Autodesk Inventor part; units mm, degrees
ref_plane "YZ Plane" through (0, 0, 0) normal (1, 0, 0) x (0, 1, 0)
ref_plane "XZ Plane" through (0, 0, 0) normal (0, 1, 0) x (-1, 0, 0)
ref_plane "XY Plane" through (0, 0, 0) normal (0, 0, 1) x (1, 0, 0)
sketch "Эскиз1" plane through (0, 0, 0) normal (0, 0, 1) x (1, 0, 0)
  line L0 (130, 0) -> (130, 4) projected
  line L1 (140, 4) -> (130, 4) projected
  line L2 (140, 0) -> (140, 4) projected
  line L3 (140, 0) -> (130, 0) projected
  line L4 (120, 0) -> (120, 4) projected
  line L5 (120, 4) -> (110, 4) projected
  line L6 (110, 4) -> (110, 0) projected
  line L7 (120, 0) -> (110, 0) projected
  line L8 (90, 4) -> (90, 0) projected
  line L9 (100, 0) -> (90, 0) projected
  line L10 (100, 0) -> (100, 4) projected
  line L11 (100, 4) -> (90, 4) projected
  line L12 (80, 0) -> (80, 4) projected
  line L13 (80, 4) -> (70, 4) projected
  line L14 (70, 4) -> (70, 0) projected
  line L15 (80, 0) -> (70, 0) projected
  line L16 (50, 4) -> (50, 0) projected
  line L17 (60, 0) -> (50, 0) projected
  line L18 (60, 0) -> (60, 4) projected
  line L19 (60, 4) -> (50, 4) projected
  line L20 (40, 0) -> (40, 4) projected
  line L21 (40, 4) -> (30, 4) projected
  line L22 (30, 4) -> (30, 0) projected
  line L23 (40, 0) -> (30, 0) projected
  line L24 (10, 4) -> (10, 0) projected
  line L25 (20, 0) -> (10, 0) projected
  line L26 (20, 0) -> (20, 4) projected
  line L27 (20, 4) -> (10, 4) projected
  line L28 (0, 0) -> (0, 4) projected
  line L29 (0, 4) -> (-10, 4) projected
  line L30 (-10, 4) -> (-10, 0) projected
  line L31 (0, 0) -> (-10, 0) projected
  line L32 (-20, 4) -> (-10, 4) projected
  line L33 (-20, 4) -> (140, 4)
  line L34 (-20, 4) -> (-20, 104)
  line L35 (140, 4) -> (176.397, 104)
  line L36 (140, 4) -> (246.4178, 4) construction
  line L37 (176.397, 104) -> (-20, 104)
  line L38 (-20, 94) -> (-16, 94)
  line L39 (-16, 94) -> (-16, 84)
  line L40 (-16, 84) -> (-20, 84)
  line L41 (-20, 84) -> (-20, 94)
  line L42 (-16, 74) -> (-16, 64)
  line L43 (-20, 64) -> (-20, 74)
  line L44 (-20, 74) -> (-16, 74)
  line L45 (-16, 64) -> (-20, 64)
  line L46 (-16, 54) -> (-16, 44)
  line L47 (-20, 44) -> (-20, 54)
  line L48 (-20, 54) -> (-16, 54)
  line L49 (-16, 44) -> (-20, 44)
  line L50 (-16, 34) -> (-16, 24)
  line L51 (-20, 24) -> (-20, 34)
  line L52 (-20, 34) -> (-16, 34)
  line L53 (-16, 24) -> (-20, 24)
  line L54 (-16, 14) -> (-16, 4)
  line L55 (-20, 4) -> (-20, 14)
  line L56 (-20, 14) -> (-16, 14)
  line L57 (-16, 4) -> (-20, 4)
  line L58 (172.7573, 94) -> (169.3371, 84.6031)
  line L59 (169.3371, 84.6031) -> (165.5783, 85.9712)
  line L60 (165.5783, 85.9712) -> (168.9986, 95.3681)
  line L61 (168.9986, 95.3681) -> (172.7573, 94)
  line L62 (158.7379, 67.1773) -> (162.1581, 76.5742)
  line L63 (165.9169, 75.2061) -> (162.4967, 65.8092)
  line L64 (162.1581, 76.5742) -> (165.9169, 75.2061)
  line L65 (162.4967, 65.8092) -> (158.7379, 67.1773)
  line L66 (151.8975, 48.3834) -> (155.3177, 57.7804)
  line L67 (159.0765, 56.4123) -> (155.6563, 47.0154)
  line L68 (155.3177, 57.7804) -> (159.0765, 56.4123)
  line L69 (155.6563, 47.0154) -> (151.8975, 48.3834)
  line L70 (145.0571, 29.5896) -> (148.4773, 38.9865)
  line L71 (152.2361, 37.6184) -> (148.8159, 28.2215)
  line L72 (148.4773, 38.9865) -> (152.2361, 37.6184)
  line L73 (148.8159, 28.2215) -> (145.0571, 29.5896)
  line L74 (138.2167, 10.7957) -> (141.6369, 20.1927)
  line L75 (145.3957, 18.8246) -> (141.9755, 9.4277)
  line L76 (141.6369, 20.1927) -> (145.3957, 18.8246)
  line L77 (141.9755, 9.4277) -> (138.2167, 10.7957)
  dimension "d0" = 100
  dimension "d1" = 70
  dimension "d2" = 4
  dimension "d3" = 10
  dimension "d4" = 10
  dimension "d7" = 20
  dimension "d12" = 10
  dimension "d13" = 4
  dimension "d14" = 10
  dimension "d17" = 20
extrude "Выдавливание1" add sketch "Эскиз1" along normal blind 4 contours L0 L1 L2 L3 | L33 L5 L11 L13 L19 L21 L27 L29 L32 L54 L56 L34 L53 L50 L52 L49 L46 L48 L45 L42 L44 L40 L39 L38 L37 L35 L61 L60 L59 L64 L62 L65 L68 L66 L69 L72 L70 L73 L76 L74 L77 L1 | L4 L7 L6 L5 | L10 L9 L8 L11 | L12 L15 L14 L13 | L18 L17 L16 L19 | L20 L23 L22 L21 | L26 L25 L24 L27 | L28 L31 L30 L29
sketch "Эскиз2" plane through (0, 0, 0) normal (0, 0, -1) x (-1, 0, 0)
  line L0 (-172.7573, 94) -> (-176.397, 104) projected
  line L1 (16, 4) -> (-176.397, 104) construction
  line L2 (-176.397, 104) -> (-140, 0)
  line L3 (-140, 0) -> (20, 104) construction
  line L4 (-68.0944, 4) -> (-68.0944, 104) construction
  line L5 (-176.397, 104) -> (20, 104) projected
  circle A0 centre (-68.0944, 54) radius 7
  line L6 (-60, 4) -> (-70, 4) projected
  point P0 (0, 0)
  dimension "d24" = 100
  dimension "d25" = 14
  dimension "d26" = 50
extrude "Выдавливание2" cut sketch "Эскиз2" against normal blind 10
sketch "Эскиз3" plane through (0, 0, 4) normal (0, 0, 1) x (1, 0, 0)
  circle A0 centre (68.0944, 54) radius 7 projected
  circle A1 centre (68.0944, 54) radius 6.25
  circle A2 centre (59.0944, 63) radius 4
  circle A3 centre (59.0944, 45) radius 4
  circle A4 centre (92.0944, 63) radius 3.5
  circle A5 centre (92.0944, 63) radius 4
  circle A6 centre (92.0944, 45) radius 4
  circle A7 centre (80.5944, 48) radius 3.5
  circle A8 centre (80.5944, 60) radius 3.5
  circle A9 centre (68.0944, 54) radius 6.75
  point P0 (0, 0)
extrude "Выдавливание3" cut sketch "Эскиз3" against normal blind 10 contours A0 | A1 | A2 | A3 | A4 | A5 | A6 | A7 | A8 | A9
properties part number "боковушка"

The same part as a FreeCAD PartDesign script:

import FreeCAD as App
import Part
import Sketcher
Q = App.Units.Quantity

doc = App.newDocument("Part")
body = doc.addObject("PartDesign::Body", "Body")

sketch1 = body.newObject("Sketcher::SketchObject", "Sketch")
sketch1.AttachmentSupport = (doc.getObject("XY_Plane"), [""])
sketch1.MapMode = "FlatFace"
sketch1.addGeometry([
    Part.LineSegment(App.Vector(130, 4, 0), App.Vector(130, 0, 0)),
    Part.LineSegment(App.Vector(130, 0, 0), App.Vector(140, 0, 0)),
    Part.LineSegment(App.Vector(140, 0, 0), App.Vector(140, 4, 0)),
    Part.LineSegment(App.Vector(140, 4, 0), App.Vector(142, 9.4, 0)),
    Part.LineSegment(App.Vector(142, 9.4, 0), App.Vector(138.2, 10.8, 0)),
    Part.LineSegment(App.Vector(138.2, 10.8, 0), App.Vector(141.6, 20.2, 0)),
    Part.LineSegment(App.Vector(141.6, 20.2, 0), App.Vector(145.4, 18.8, 0)),
    Part.LineSegment(App.Vector(145.4, 18.8, 0), App.Vector(148.8, 28.2, 0)),
    Part.LineSegment(App.Vector(148.8, 28.2, 0), App.Vector(145.1, 29.6, 0)),
    Part.LineSegment(App.Vector(145.1, 29.6, 0), App.Vector(148.5, 39, 0)),
    Part.LineSegment(App.Vector(148.5, 39, 0), App.Vector(152.2, 37.6, 0)),
    Part.LineSegment(App.Vector(152.2, 37.6, 0), App.Vector(155.7, 47, 0)),
    Part.LineSegment(App.Vector(155.7, 47, 0), App.Vector(151.9, 48.4, 0)),
    Part.LineSegment(App.Vector(151.9, 48.4, 0), App.Vector(155.3, 57.8, 0)),
    Part.LineSegment(App.Vector(155.3, 57.8, 0), App.Vector(159.1, 56.4, 0)),
    Part.LineSegment(App.Vector(159.1, 56.4, 0), App.Vector(162.5, 65.8, 0)),
    Part.LineSegment(App.Vector(162.5, 65.8, 0), App.Vector(158.7, 67.2, 0)),
    Part.LineSegment(App.Vector(158.7, 67.2, 0), App.Vector(162.2, 76.6, 0)),
    Part.LineSegment(App.Vector(162.2, 76.6, 0), App.Vector(165.9, 75.2, 0)),
    Part.LineSegment(App.Vector(165.9, 75.2, 0), App.Vector(169.3, 84.6, 0)),
    Part.LineSegment(App.Vector(169.3, 84.6, 0), App.Vector(165.6, 86, 0)),
    Part.LineSegment(App.Vector(165.6, 86, 0), App.Vector(169, 95.4, 0)),
    Part.LineSegment(App.Vector(169, 95.4, 0), App.Vector(172.8, 94, 0)),
    Part.LineSegment(App.Vector(172.8, 94, 0), App.Vector(176.4, 104, 0)),
    Part.LineSegment(App.Vector(176.4, 104, 0), App.Vector(-20, 104, 0)),
    Part.LineSegment(App.Vector(-20, 104, 0), App.Vector(-20, 94, 0)),
    Part.LineSegment(App.Vector(-20, 94, 0), App.Vector(-16, 94, 0)),
    Part.LineSegment(App.Vector(-16, 94, 0), App.Vector(-16, 84, 0)),
    Part.LineSegment(App.Vector(-16, 84, 0), App.Vector(-20, 84, 0)),
    Part.LineSegment(App.Vector(-20, 84, 0), App.Vector(-20, 74, 0)),
    Part.LineSegment(App.Vector(-20, 74, 0), App.Vector(-16, 74, 0)),
    Part.LineSegment(App.Vector(-16, 74, 0), App.Vector(-16, 64, 0)),
    Part.LineSegment(App.Vector(-16, 64, 0), App.Vector(-20, 64, 0)),
    Part.LineSegment(App.Vector(-20, 64, 0), App.Vector(-20, 54, 0)),
    Part.LineSegment(App.Vector(-20, 54, 0), App.Vector(-16, 54, 0)),
    Part.LineSegment(App.Vector(-16, 54, 0), App.Vector(-16, 44, 0)),
    Part.LineSegment(App.Vector(-16, 44, 0), App.Vector(-20, 44, 0)),
    Part.LineSegment(App.Vector(-20, 44, 0), App.Vector(-20, 34, 0)),
    Part.LineSegment(App.Vector(-20, 34, 0), App.Vector(-16, 34, 0)),
    Part.LineSegment(App.Vector(-16, 34, 0), App.Vector(-16, 24, 0)),
    Part.LineSegment(App.Vector(-16, 24, 0), App.Vector(-20, 24, 0)),
    Part.LineSegment(App.Vector(-20, 24, 0), App.Vector(-20, 14, 0)),
    Part.LineSegment(App.Vector(-20, 14, 0), App.Vector(-16, 14, 0)),
    Part.LineSegment(App.Vector(-16, 14, 0), App.Vector(-16, 4, 0)),
    Part.LineSegment(App.Vector(-16, 4, 0), App.Vector(-10, 4, 0)),
    Part.LineSegment(App.Vector(-10, 4, 0), App.Vector(-10, 0, 0)),
    Part.LineSegment(App.Vector(-10, 0, 0), App.Vector(0, 0, 0)),
    Part.LineSegment(App.Vector(0, 0, 0), App.Vector(0, 4, 0)),
    Part.LineSegment(App.Vector(0, 4, 0), App.Vector(10, 4, 0)),
    Part.LineSegment(App.Vector(10, 4, 0), App.Vector(10, 0, 0)),
    Part.LineSegment(App.Vector(10, 0, 0), App.Vector(20, 0, 0)),
    Part.LineSegment(App.Vector(20, 0, 0), App.Vector(20, 4, 0)),
    Part.LineSegment(App.Vector(20, 4, 0), App.Vector(30, 4, 0)),
    Part.LineSegment(App.Vector(30, 4, 0), App.Vector(30, 0, 0)),
    Part.LineSegment(App.Vector(30, 0, 0), App.Vector(40, 0, 0)),
    Part.LineSegment(App.Vector(40, 0, 0), App.Vector(40, 4, 0)),
    Part.LineSegment(App.Vector(40, 4, 0), App.Vector(50, 4, 0)),
    Part.LineSegment(App.Vector(50, 4, 0), App.Vector(50, 0, 0)),
    Part.LineSegment(App.Vector(50, 0, 0), App.Vector(60, 0, 0)),
    Part.LineSegment(App.Vector(60, 0, 0), App.Vector(60, 4, 0)),
    Part.LineSegment(App.Vector(60, 4, 0), App.Vector(70, 4, 0)),
    Part.LineSegment(App.Vector(70, 4, 0), App.Vector(70, 0, 0)),
    Part.LineSegment(App.Vector(70, 0, 0), App.Vector(80, 0, 0)),
    Part.LineSegment(App.Vector(80, 0, 0), App.Vector(80, 4, 0)),
    Part.LineSegment(App.Vector(80, 4, 0), App.Vector(90, 4, 0)),
    Part.LineSegment(App.Vector(90, 4, 0), App.Vector(90, 0, 0)),
    Part.LineSegment(App.Vector(90, 0, 0), App.Vector(100, 0, 0)),
    Part.LineSegment(App.Vector(100, 0, 0), App.Vector(100, 4, 0)),
    Part.LineSegment(App.Vector(100, 4, 0), App.Vector(110, 4, 0)),
    Part.LineSegment(App.Vector(110, 4, 0), App.Vector(110, 0, 0)),
    Part.LineSegment(App.Vector(110, 0, 0), App.Vector(120, 0, 0)),
    Part.LineSegment(App.Vector(120, 0, 0), App.Vector(120, 4, 0)),
    Part.LineSegment(App.Vector(120, 4, 0), App.Vector(130, 4, 0)),
], False)
sketch1.addConstraint([
    Sketcher.Constraint("Coincident", 0, 2, 1, 1),
    Sketcher.Constraint("Coincident", 1, 2, 2, 1),
    Sketcher.Constraint("Coincident", 2, 2, 3, 1),
    Sketcher.Constraint("Coincident", 3, 2, 4, 1),
    Sketcher.Constraint("Coincident", 4, 2, 5, 1),
    Sketcher.Constraint("Coincident", 5, 2, 6, 1),
    Sketcher.Constraint("Coincident", 6, 2, 7, 1),
    Sketcher.Constraint("Coincident", 7, 2, 8, 1),
    Sketcher.Constraint("Coincident", 8, 2, 9, 1),
    Sketcher.Constraint("Coincident", 9, 2, 10, 1),
    Sketcher.Constraint("Coincident", 10, 2, 11, 1),
    Sketcher.Constraint("Coincident", 11, 2, 12, 1),
    Sketcher.Constraint("Coincident", 12, 2, 13, 1),
    Sketcher.Constraint("Coincident", 13, 2, 14, 1),
    Sketcher.Constraint("Coincident", 14, 2, 15, 1),
    Sketcher.Constraint("Coincident", 15, 2, 16, 1),
    Sketcher.Constraint("Coincident", 16, 2, 17, 1),
    Sketcher.Constraint("Coincident", 17, 2, 18, 1),
    Sketcher.Constraint("Coincident", 18, 2, 19, 1),
    Sketcher.Constraint("Coincident", 19, 2, 20, 1),
    Sketcher.Constraint("Coincident", 20, 2, 21, 1),
    Sketcher.Constraint("Coincident", 21, 2, 22, 1),
    Sketcher.Constraint("Coincident", 22, 2, 23, 1),
    Sketcher.Constraint("Coincident", 23, 2, 24, 1),
    Sketcher.Constraint("Coincident", 24, 2, 25, 1),
    Sketcher.Constraint("Coincident", 25, 2, 26, 1),
    Sketcher.Constraint("Coincident", 26, 2, 27, 1),
    Sketcher.Constraint("Coincident", 27, 2, 28, 1),
    Sketcher.Constraint("Coincident", 28, 2, 29, 1),
    Sketcher.Constraint("Coincident", 29, 2, 30, 1),
    Sketcher.Constraint("Coincident", 30, 2, 31, 1),
    Sketcher.Constraint("Coincident", 31, 2, 32, 1),
    Sketcher.Constraint("Coincident", 32, 2, 33, 1),
    Sketcher.Constraint("Coincident", 33, 2, 34, 1),
    Sketcher.Constraint("Coincident", 34, 2, 35, 1),
    Sketcher.Constraint("Coincident", 35, 2, 36, 1),
    Sketcher.Constraint("Coincident", 36, 2, 37, 1),
    Sketcher.Constraint("Coincident", 37, 2, 38, 1),
    Sketcher.Constraint("Coincident", 38, 2, 39, 1),
    Sketcher.Constraint("Coincident", 39, 2, 40, 1),
    Sketcher.Constraint("Coincident", 40, 2, 41, 1),
    Sketcher.Constraint("Coincident", 41, 2, 42, 1),
    Sketcher.Constraint("Coincident", 42, 2, 43, 1),
    Sketcher.Constraint("Coincident", 43, 2, 44, 1),
    Sketcher.Constraint("Coincident", 44, 2, 45, 1),
    Sketcher.Constraint("Coincident", 45, 2, 46, 1),
    Sketcher.Constraint("Coincident", 46, 2, 47, 1),
    Sketcher.Constraint("Coincident", 47, 2, 48, 1),
    Sketcher.Constraint("Coincident", 48, 2, 49, 1),
    Sketcher.Constraint("Coincident", 49, 2, 50, 1),
    Sketcher.Constraint("Coincident", 50, 2, 51, 1),
    Sketcher.Constraint("Coincident", 51, 2, 52, 1),
    Sketcher.Constraint("Coincident", 52, 2, 53, 1),
    Sketcher.Constraint("Coincident", 53, 2, 54, 1),
    Sketcher.Constraint("Coincident", 54, 2, 55, 1),
    Sketcher.Constraint("Coincident", 55, 2, 56, 1),
    Sketcher.Constraint("Coincident", 56, 2, 57, 1),
    Sketcher.Constraint("Coincident", 57, 2, 58, 1),
    Sketcher.Constraint("Coincident", 58, 2, 59, 1),
    Sketcher.Constraint("Coincident", 59, 2, 60, 1),
    Sketcher.Constraint("Coincident", 60, 2, 61, 1),
    Sketcher.Constraint("Coincident", 61, 2, 62, 1),
    Sketcher.Constraint("Coincident", 62, 2, 63, 1),
    Sketcher.Constraint("Coincident", 63, 2, 64, 1),
    Sketcher.Constraint("Coincident", 64, 2, 65, 1),
    Sketcher.Constraint("Coincident", 65, 2, 66, 1),
    Sketcher.Constraint("Coincident", 66, 2, 67, 1),
    Sketcher.Constraint("Coincident", 67, 2, 68, 1),
    Sketcher.Constraint("Coincident", 68, 2, 69, 1),
    Sketcher.Constraint("Coincident", 69, 2, 70, 1),
    Sketcher.Constraint("Coincident", 70, 2, 71, 1),
    Sketcher.Constraint("Coincident", 71, 2, 72, 1),
    Sketcher.Constraint("Coincident", 72, 2, 0, 1),
    Sketcher.Constraint("Vertical", 0),
    Sketcher.Constraint("Horizontal", 1),
    Sketcher.Constraint("Vertical", 2),
    Sketcher.Constraint("Horizontal", 24),
    Sketcher.Constraint("Vertical", 25),
    Sketcher.Constraint("Horizontal", 26),
    Sketcher.Constraint("Vertical", 27),
    Sketcher.Constraint("Horizontal", 28),
    Sketcher.Constraint("Vertical", 29),
    Sketcher.Constraint("Horizontal", 30),
    Sketcher.Constraint("Vertical", 31),
    Sketcher.Constraint("Horizontal", 32),
    Sketcher.Constraint("Vertical", 33),
    Sketcher.Constraint("Horizontal", 34),
    Sketcher.Constraint("Vertical", 35),
    Sketcher.Constraint("Horizontal", 36),
    Sketcher.Constraint("Vertical", 37),
    Sketcher.Constraint("Horizontal", 38),
    Sketcher.Constraint("Vertical", 39),
    Sketcher.Constraint("Horizontal", 40),
    Sketcher.Constraint("Vertical", 41),
    Sketcher.Constraint("Horizontal", 42),
    Sketcher.Constraint("Vertical", 43),
    Sketcher.Constraint("Horizontal", 44),
    Sketcher.Constraint("Vertical", 45),
    Sketcher.Constraint("Horizontal", 46),
    Sketcher.Constraint("Vertical", 47),
    Sketcher.Constraint("Horizontal", 48),
    Sketcher.Constraint("Vertical", 49),
    Sketcher.Constraint("Horizontal", 50),
    Sketcher.Constraint("Vertical", 51),
    Sketcher.Constraint("Horizontal", 52),
    Sketcher.Constraint("Vertical", 53),
    Sketcher.Constraint("Horizontal", 54),
    Sketcher.Constraint("Vertical", 55),
    Sketcher.Constraint("Horizontal", 56),
    Sketcher.Constraint("Vertical", 57),
    Sketcher.Constraint("Horizontal", 58),
    Sketcher.Constraint("Vertical", 59),
    Sketcher.Constraint("Horizontal", 60),
    Sketcher.Constraint("Vertical", 61),
    Sketcher.Constraint("Horizontal", 62),
    Sketcher.Constraint("Vertical", 63),
    Sketcher.Constraint("Horizontal", 64),
    Sketcher.Constraint("Vertical", 65),
    Sketcher.Constraint("Horizontal", 66),
    Sketcher.Constraint("Vertical", 67),
    Sketcher.Constraint("Horizontal", 68),
    Sketcher.Constraint("Vertical", 69),
    Sketcher.Constraint("Horizontal", 70),
    Sketcher.Constraint("Vertical", 71),
    Sketcher.Constraint("Horizontal", 72),
    Sketcher.Constraint("Coincident", 46, 2, -1, 1),
    Sketcher.Constraint("Symmetric", 45, 2, 49, 2, -1, 1),
    Sketcher.Constraint("PointOnObject", 0, 2, -1),
    Sketcher.Constraint("PointOnObject", 53, 2, -1),
    Sketcher.Constraint("PointOnObject", 57, 2, -1),
    Sketcher.Constraint("PointOnObject", 61, 2, -1),
    Sketcher.Constraint("PointOnObject", 65, 2, -1),
    Sketcher.Constraint("PointOnObject", 69, 2, -1),
    Sketcher.Constraint("Perpendicular", 3, 4),
    Sketcher.Constraint("Perpendicular", 4, 5),
    Sketcher.Constraint("Perpendicular", 5, 6),
    Sketcher.Constraint("Perpendicular", 6, 7),
    Sketcher.Constraint("Perpendicular", 7, 8),
    Sketcher.Constraint("Perpendicular", 8, 9),
    Sketcher.Constraint("Perpendicular", 9, 10),
    Sketcher.Constraint("Perpendicular", 10, 11),
    Sketcher.Constraint("Perpendicular", 11, 12),
    Sketcher.Constraint("Perpendicular", 12, 13),
    Sketcher.Constraint("Perpendicular", 13, 14),
    Sketcher.Constraint("Perpendicular", 14, 15),
    Sketcher.Constraint("Perpendicular", 15, 16),
    Sketcher.Constraint("Perpendicular", 16, 17),
    Sketcher.Constraint("Perpendicular", 17, 18),
    Sketcher.Constraint("Perpendicular", 18, 19),
    Sketcher.Constraint("Perpendicular", 19, 20),
    Sketcher.Constraint("Perpendicular", 20, 21),
    Sketcher.Constraint("Perpendicular", 21, 22),
    Sketcher.Constraint("Perpendicular", 22, 23),
    Sketcher.Constraint("Horizontal", 22, 2, 25, 2),
    Sketcher.Constraint("Horizontal", 2, 2, 43, 2),
    Sketcher.Constraint("Horizontal", 44, 2, 47, 2),
    Sketcher.Constraint("Horizontal", 48, 2, 51, 2),
    Sketcher.Constraint("Horizontal", 52, 2, 55, 2),
    Sketcher.Constraint("Horizontal", 56, 2, 59, 2),
    Sketcher.Constraint("Horizontal", 60, 2, 63, 2),
    Sketcher.Constraint("Horizontal", 64, 2, 67, 2),
    Sketcher.Constraint("Horizontal", 68, 2, 71, 2),
    Sketcher.Constraint("Vertical", 25, 2, 28, 2),
    Sketcher.Constraint("Vertical", 27, 2, 30, 2),
    Sketcher.Constraint("Vertical", 29, 2, 32, 2),
    Sketcher.Constraint("Vertical", 31, 2, 34, 2),
    Sketcher.Constraint("Vertical", 33, 2, 36, 2),
    Sketcher.Constraint("Vertical", 35, 2, 38, 2),
    Sketcher.Constraint("Vertical", 37, 2, 40, 2),
    Sketcher.Constraint("Vertical", 39, 2, 42, 2),
    Sketcher.Constraint("Equal", 1, 46),
    Sketcher.Constraint("Equal", 48, 50),
    Sketcher.Constraint("Equal", 50, 52),
    Sketcher.Constraint("Equal", 52, 54),
    Sketcher.Constraint("Equal", 54, 56),
    Sketcher.Constraint("Equal", 56, 58),
    Sketcher.Constraint("Equal", 58, 60),
    Sketcher.Constraint("Equal", 60, 62),
    Sketcher.Constraint("Equal", 62, 64),
    Sketcher.Constraint("Equal", 64, 66),
    Sketcher.Constraint("Equal", 66, 68),
    Sketcher.Constraint("Equal", 68, 70),
    Sketcher.Constraint("Equal", 70, 72),
    Sketcher.Constraint("Equal", 42, 0),
    Sketcher.Constraint("Equal", 72, 25),
    Sketcher.Constraint("Equal", 25, 27),
    Sketcher.Constraint("Equal", 27, 29),
    Sketcher.Constraint("Equal", 29, 31),
    Sketcher.Constraint("Equal", 31, 33),
    Sketcher.Constraint("Equal", 33, 35),
    Sketcher.Constraint("Equal", 35, 37),
    Sketcher.Constraint("Equal", 37, 39),
    Sketcher.Constraint("Equal", 39, 41),
    Sketcher.Constraint("Equal", 41, 43),
    Sketcher.Constraint("Equal", 4, 6),
    Sketcher.Constraint("Equal", 5, 7),
    Sketcher.Constraint("Equal", 6, 8),
    Sketcher.Constraint("Equal", 7, 9),
    Sketcher.Constraint("Equal", 8, 10),
    Sketcher.Constraint("Equal", 9, 11),
    Sketcher.Constraint("Equal", 10, 12),
    Sketcher.Constraint("Equal", 11, 13),
    Sketcher.Constraint("Equal", 12, 14),
    Sketcher.Constraint("Equal", 13, 15),
    Sketcher.Constraint("Equal", 14, 16),
    Sketcher.Constraint("Equal", 15, 17),
    Sketcher.Constraint("Equal", 16, 18),
    Sketcher.Constraint("Equal", 17, 19),
    Sketcher.Constraint("Equal", 18, 20),
    Sketcher.Constraint("Equal", 19, 21),
    Sketcher.Constraint("Equal", 20, 22),
    Sketcher.Constraint("DistanceX", 1, 1, 1, 2, Q("10 mm")),
    Sketcher.Constraint("DistanceX", 26, 1, 26, 2, Q("4 mm")),
    Sketcher.Constraint("Angle", 3, Q("70 deg")),
    Sketcher.Constraint("Distance", 4, Q("4 mm")),
    Sketcher.Constraint("Distance", 5, Q("10 mm")),
    Sketcher.Constraint("DistanceX", 24, 2, -1, 1, Q("20 mm")),
])
pad1 = body.newObject("PartDesign::Pad", "Pad")
pad1.Profile = sketch1
pad1.Length = 4

sketch2 = body.newObject("Sketcher::SketchObject", "Sketch001")
sketch2.AttachmentSupport = (doc.getObject("XY_Plane"), [""])
sketch2.MapMode = "FlatFace"
sketch2.addGeometry(Part.Circle(App.Vector(68, 54, 0), App.Vector(0, 0, 1), 7), False)
sketch2.addConstraint([
    Sketcher.Constraint("Diameter", 0, Q("14 mm")),
    Sketcher.Constraint("DistanceY", -1, 1, 0, 3, Q("54 mm")),
    Sketcher.Constraint("DistanceX", -1, 1, 0, 3, Q("68.0944 mm")),
])
pocket1 = body.newObject("PartDesign::Pocket", "Pocket")
pocket1.Profile = sketch2
pocket1.Length = 10
pocket1.Reversed = True

sketch3 = body.newObject("Sketcher::SketchObject", "Sketch002")
sketch3.AttachmentSupport = (doc.getObject("XY_Plane"), [""])
sketch3.MapMode = "FlatFace"
sketch3.AttachmentOffset = App.Placement(App.Vector(0, 0, 4), App.Rotation())
sketch3.addGeometry([
    Part.Circle(App.Vector(68.1, 54, 0), App.Vector(0, 0, 1), 7),
    Part.Circle(App.Vector(59.1, 63, 0), App.Vector(0, 0, 1), 4),
    Part.Circle(App.Vector(59.1, 45, 0), App.Vector(0, 0, 1), 4),
    Part.Circle(App.Vector(92.1, 63, 0), App.Vector(0, 0, 1), 4),
    Part.Circle(App.Vector(92.1, 45, 0), App.Vector(0, 0, 1), 4),
    Part.Circle(App.Vector(80.6, 48, 0), App.Vector(0, 0, 1), 3.5),
    Part.Circle(App.Vector(80.6, 60, 0), App.Vector(0, 0, 1), 3.5),
], False)
sketch3.addConstraint([
    Sketcher.Constraint("Equal", 1, 2),
    Sketcher.Constraint("Equal", 2, 3),
    Sketcher.Constraint("Equal", 3, 4),
    Sketcher.Constraint("Equal", 5, 6),
    Sketcher.Constraint("Horizontal", 1, 3, 3, 3),
    Sketcher.Constraint("Horizontal", 2, 3, 4, 3),
    Sketcher.Constraint("Vertical", 1, 3, 2, 3),
    Sketcher.Constraint("Vertical", 3, 3, 4, 3),
    Sketcher.Constraint("Vertical", 5, 3, 6, 3),
    Sketcher.Constraint("Diameter", 0, Q("14 mm")),
    Sketcher.Constraint("Diameter", 1, Q("8 mm")),
    Sketcher.Constraint("Diameter", 5, Q("7 mm")),
    Sketcher.Constraint("DistanceY", -1, 1, 0, 3, Q("54 mm")),
    Sketcher.Constraint("DistanceY", -1, 1, 1, 3, Q("63 mm")),
    Sketcher.Constraint("DistanceY", -1, 1, 2, 3, Q("45 mm")),
    Sketcher.Constraint("DistanceY", -1, 1, 5, 3, Q("48 mm")),
    Sketcher.Constraint("DistanceY", -1, 1, 6, 3, Q("60 mm")),
    Sketcher.Constraint("DistanceX", 1, 3, 0, 3, Q("9 mm")),
    Sketcher.Constraint("DistanceX", 0, 3, 3, 3, Q("24 mm")),
    Sketcher.Constraint("DistanceX", 5, 3, 4, 3, Q("11.5 mm")),
    Sketcher.Constraint("DistanceX", -1, 1, 0, 3, Q("68.0944 mm")),
])
pocket2 = body.newObject("PartDesign::Pocket", "Pocket001")
pocket2.Profile = sketch3
pocket2.Length = 10

doc.recompute()
